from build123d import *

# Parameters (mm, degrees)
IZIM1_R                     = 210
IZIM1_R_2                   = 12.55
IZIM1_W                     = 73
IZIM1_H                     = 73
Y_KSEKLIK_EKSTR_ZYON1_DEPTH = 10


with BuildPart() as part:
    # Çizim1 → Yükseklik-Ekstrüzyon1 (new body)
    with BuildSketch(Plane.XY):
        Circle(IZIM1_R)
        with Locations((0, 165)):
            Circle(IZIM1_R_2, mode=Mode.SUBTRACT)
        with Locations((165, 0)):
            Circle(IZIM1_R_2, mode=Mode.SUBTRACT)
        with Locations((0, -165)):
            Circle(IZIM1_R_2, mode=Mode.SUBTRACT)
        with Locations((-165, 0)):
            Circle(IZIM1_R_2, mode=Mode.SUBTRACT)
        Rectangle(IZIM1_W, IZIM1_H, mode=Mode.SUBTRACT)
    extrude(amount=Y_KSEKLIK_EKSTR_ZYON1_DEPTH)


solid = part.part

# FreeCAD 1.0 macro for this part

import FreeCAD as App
import Part
import Sketcher
from FreeCAD import Vector


def add_polygon(sketch, points):
    """Adds a closed chain of lines whose ends are joined by coincident constraints."""
    first, n = sketch.GeometryCount, len(points)
    for a, b in zip(points, points[1:] + points[:1]):
        sketch.addGeometry(Part.LineSegment(App.Vector(*a, 0), App.Vector(*b, 0)), False)
    for i in range(n):
        sketch.addConstraint(Sketcher.Constraint("Coincident", first + i, 2, first + (i + 1) % n, 1))

doc = App.newDocument("Part")
params = doc.addObject("Spreadsheet::Sheet", "Params")
for row, (alias, value) in enumerate([
    ("sketch1_diameter", "420 mm"),
    ("sketch1_diameter2", "25.1 mm"),
    ("sketch1_width", "73 mm"),
    ("pad1_length", "10 mm"),
], start=1):
    params.set(f"A{row}", alias)
    params.set(f"B{row}", "=" + value)
    params.setAlias(f"B{row}", alias)

body = doc.addObject("PartDesign::Body", "Body")

sketch1 = doc.addObject("Sketcher::SketchObject", "Sketch")
body.addObject(sketch1)
sketch1.AttachmentSupport = (doc.XY_Plane, [""])
sketch1.MapMode = "FlatFace"
sketch1.addGeometry(Part.Circle(Vector(0, 0, 0), Vector(0, 0, 1), 210), False)
sketch1.addGeometry(Part.Circle(Vector(0, -165, 0), Vector(0, 0, 1), 13), False)
sketch1.addGeometry(Part.Circle(Vector(-165, 0, 0), Vector(0, 0, 1), 13), False)
add_polygon(sketch1, [(36, -36), (-36, -36), (-36, 36), (36, 36)])
sketch1.addGeometry(Part.Circle(Vector(165, 0, 0), Vector(0, 0, 1), 13), False)
sketch1.addGeometry(Part.Circle(Vector(0, 165, 0), Vector(0, 0, 1), 13), False)
sketch1.addConstraint([
    Sketcher.Constraint("Horizontal", 3),
    Sketcher.Constraint("Vertical", 4),
    Sketcher.Constraint("Horizontal", 5),
    Sketcher.Constraint("Vertical", 6),
    Sketcher.Constraint("Coincident", 0, 3, -1, 1),
    Sketcher.Constraint("Equal", 1, 2),
    Sketcher.Constraint("Equal", 2, 7),
    Sketcher.Constraint("Equal", 7, 8),
    Sketcher.Constraint("Symmetric", 2, 3, 7, 3, -1, 1),
    Sketcher.Constraint("Symmetric", 1, 3, 8, 3, -1, 1),
    Sketcher.Constraint("Symmetric", 3, 2, 5, 2, -1, 1),
    Sketcher.Constraint("PointOnObject", 1, 3, -2),
    Sketcher.Constraint("PointOnObject", 2, 3, -1),
    Sketcher.Constraint("Equal", 5, 4),
    Sketcher.Constraint("Diameter", 0, 420.0),
    Sketcher.Constraint("Diameter", 1, 25.1),
    Sketcher.Constraint("DistanceX", 3, 2, 3, 1, 73.0),
    Sketcher.Constraint("DistanceY", 1, 3, -1, 1, 165.0),
    Sketcher.Constraint("DistanceX", 2, 3, -1, 1, 165.0),
])
sketch1.setExpression("Constraints[18]", "Params.sketch1_diameter")
sketch1.setExpression("Constraints[19]", "Params.sketch1_diameter2")
sketch1.setExpression("Constraints[20]", "Params.sketch1_width")
pad1 = doc.addObject("PartDesign::Pad", "Pad")
body.addObject(pad1)
pad1.Profile = sketch1
pad1.setExpression("Length", "Params.pad1_length")

doc.recompute()
